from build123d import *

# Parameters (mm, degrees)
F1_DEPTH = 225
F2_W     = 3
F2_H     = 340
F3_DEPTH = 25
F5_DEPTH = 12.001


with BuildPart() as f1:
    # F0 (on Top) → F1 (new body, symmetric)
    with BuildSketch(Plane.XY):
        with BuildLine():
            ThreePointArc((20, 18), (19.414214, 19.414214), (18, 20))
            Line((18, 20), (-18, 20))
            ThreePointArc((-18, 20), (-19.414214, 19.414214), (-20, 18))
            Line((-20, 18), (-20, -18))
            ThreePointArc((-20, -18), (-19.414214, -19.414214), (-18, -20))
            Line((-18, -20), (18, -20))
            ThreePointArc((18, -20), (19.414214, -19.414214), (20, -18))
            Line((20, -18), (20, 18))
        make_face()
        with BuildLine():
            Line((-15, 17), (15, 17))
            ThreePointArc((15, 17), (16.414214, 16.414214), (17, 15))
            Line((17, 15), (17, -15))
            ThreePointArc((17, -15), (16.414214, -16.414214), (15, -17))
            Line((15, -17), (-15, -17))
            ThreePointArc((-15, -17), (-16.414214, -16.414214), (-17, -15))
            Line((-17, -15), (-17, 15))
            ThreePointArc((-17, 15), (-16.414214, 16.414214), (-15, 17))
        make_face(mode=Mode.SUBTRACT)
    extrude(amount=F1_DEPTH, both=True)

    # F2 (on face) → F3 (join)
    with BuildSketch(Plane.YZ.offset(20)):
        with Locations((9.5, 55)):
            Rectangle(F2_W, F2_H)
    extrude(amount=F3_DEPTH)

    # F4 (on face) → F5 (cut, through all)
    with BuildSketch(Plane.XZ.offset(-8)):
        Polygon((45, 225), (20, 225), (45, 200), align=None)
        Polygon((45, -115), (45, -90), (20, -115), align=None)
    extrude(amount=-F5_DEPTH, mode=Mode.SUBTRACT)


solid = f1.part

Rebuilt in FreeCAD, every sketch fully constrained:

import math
import FreeCAD as App
import Part
import Sketcher

V = App.Vector


def add_polygon(sketch, points):
    """Adds a closed chain of lines whose ends are joined by coincident constraints."""
    first, n = sketch.GeometryCount, len(points)
    for a, b in zip(points, points[1:] + points[:1]):
        sketch.addGeometry(Part.LineSegment(App.Vector(*a, 0), App.Vector(*b, 0)), False)
    for i in range(n):
        sketch.addConstraint(Sketcher.Constraint("Coincident", first + i, 2, first + (i + 1) % n, 1))

doc = App.newDocument("Part")
body = doc.addObject("PartDesign::Body", "Body")

sketch1 = body.newObject("Sketcher::SketchObject", "Sketch")
sketch1.AttachmentSupport = (doc.getObject("XY_Plane"), [""])
sketch1.MapMode = "FlatFace"
sketch1.addGeometry([
    Part.ArcOfCircle(Part.Circle(V(18.000001, 18.000001, 0), V(0, 0, 1), 1.999999), math.radians(-0.000043), math.radians(90.000043)),
    Part.LineSegment(V(18, 20, 0), V(-18, 20, 0)),
    Part.ArcOfCircle(Part.Circle(V(-18.000001, 18.000001, 0), V(0, 0, 1), 1.999999), math.radians(89.999957), math.radians(180.000043)),
    Part.LineSegment(V(-20, 18, 0), V(-20, -18, 0)),
    Part.ArcOfCircle(Part.Circle(V(-18.000001, -18.000001, 0), V(0, 0, 1), 1.999999), math.radians(179.999957), math.radians(270.000043)),
    Part.LineSegment(V(-18, -20, 0), V(18, -20, 0)),
    Part.ArcOfCircle(Part.Circle(V(18.000001, -18.000001, 0), V(0, 0, 1), 1.999999), math.radians(-90.000043), math.radians(0.000043)),
    Part.LineSegment(V(20, -18, 0), V(20, 18, 0)),
    Part.ArcOfCircle(Part.Circle(V(-15.000001, 15.000001, 0), V(0, 0, 1), 1.999999), math.radians(89.999957), math.radians(180.000043)),
    Part.LineSegment(V(-15, 17, 0), V(15, 17, 0)),
    Part.ArcOfCircle(Part.Circle(V(15.000001, 15.000001, 0), V(0, 0, 1), 1.999999), math.radians(-0.000043), math.radians(90.000043)),
    Part.LineSegment(V(17, 15, 0), V(17, -15, 0)),
    Part.ArcOfCircle(Part.Circle(V(15.000001, -15.000001, 0), V(0, 0, 1), 1.999999), math.radians(-90.000043), math.radians(0.000043)),
    Part.LineSegment(V(15, -17, 0), V(-15, -17, 0)),
    Part.ArcOfCircle(Part.Circle(V(-15.000001, -15.000001, 0), V(0, 0, 1), 1.999999), math.radians(179.999957), math.radians(270.000043)),
    Part.LineSegment(V(-17, -15, 0), V(-17, 15, 0)),
], False)
sketch1.addConstraint([
    Sketcher.Constraint("Tangent", 0, 2, 1, 1),
    Sketcher.Constraint("Tangent", 1, 2, 2, 1),
    Sketcher.Constraint("Tangent", 2, 2, 3, 1),
    Sketcher.Constraint("Tangent", 3, 2, 4, 1),
    Sketcher.Constraint("Tangent", 4, 2, 5, 1),
    Sketcher.Constraint("Tangent", 5, 2, 6, 1),
    Sketcher.Constraint("Tangent", 6, 2, 7, 1),
    Sketcher.Constraint("Tangent", 7, 2, 0, 1),
    Sketcher.Constraint("Tangent", 8, 1, 9, 1),
    Sketcher.Constraint("Tangent", 9, 2, 10, 2),
    Sketcher.Constraint("Tangent", 10, 1, 11, 1),
    Sketcher.Constraint("Tangent", 11, 2, 12, 2),
    Sketcher.Constraint("Tangent", 12, 1, 13, 1),
    Sketcher.Constraint("Tangent", 13, 2, 14, 2),
    Sketcher.Constraint("Tangent", 14, 1, 15, 1),
    Sketcher.Constraint("Tangent", 15, 2, 8, 2),
    Sketcher.Constraint("Horizontal", 1),
    Sketcher.Constraint("Vertical", 3),
    Sketcher.Constraint("Horizontal", 5),
    Sketcher.Constraint("Vertical", 7),
    Sketcher.Constraint("Horizontal", 9),
    Sketcher.Constraint("Vertical", 11),
    Sketcher.Constraint("Horizontal", 13),
    Sketcher.Constraint("Vertical", 15),
    Sketcher.Constraint("Equal", 0, 2),
    Sketcher.Constraint("Equal", 2, 4),
    Sketcher.Constraint("Equal", 4, 6),
    Sketcher.Constraint("Equal", 6, 8),
    Sketcher.Constraint("Equal", 8, 10),
    Sketcher.Constraint("Equal", 10, 12),
    Sketcher.Constraint("Equal", 12, 14),
    Sketcher.Constraint("Symmetric", 0, 3, 4, 3, -1, 1),
    Sketcher.Constraint("Symmetric", 8, 3, 12, 3, -1, 1),
    Sketcher.Constraint("Equal", 5, 3),
    Sketcher.Constraint("Equal", 13, 11),
    Sketcher.Constraint("Radius", 0, 1.999999),
    Sketcher.Constraint("DistanceX", 1, 2, 1, 1, 36.0),
    Sketcher.Constraint("DistanceX", 9, 1, 9, 2, 30.0),
])
pad1 = body.newObject("PartDesign::Pad", "Pad")
pad1.Profile = sketch1
pad1.Length = 450
pad1.Midplane = True

sketch2 = body.newObject("Sketcher::SketchObject", "Sketch001")
sketch2.AttachmentSupport = (doc.getObject("YZ_Plane"), [""])
sketch2.MapMode = "FlatFace"
sketch2.AttachmentOffset = App.Placement(V(0, 0, 20), App.Rotation())
add_polygon(sketch2, [(8, 225), (8, -115), (11, -115), (11, 225)])
sketch2.addConstraint([
    Sketcher.Constraint("Vertical", 0),
    Sketcher.Constraint("Horizontal", 1),
    Sketcher.Constraint("Vertical", 2),
    Sketcher.Constraint("Horizontal", 3),
    Sketcher.Constraint("DistanceX", 1, 1, 1, 2, 3.0),
    Sketcher.Constraint("DistanceY", 0, 2, 0, 1, 340.0),
    Sketcher.Constraint("DistanceX", -1, 1, 0, 2, 8.0),
    Sketcher.Constraint("DistanceY", 0, 2, -1, 1, 115.0),
])
pad2 = body.newObject("PartDesign::Pad", "Pad001")
pad2.Profile = sketch2
pad2.Length = 25

sketch3 = body.newObject("Sketcher::SketchObject", "Sketch002")
sketch3.AttachmentSupport = (doc.getObject("XZ_Plane"), [""])
sketch3.MapMode = "FlatFace"
sketch3.AttachmentOffset = App.Placement(V(0, 0, -8), App.Rotation())
add_polygon(sketch3, [(45, 225), (20, 225), (45, 200)])
add_polygon(sketch3, [(45, -115), (45, -90), (20, -115)])
sketch3.addConstraint([
    Sketcher.Constraint("Horizontal", 0),
    Sketcher.Constraint("Vertical", 2),
    Sketcher.Constraint("Vertical", 3),
    Sketcher.Constraint("Horizontal", 5),
    Sketcher.Constraint("Perpendicular", 1, 4),
    Sketcher.Constraint("Vertical", 2, 2, 3, 2),
    Sketcher.Constraint("Vertical", 0, 2, 4, 2),
    Sketcher.Constraint("Equal", 5, 2),
    Sketcher.Constraint("DistanceX", 0, 2, 0, 1, 25.0),
    Sketcher.Constraint("DistanceX", -1, 1, 0, 2, 20.0),
    Sketcher.Constraint("DistanceY", -1, 1, 0, 2, 225.0),
    Sketcher.Constraint("DistanceY", 3, 2, -1, 1, 90.0),
])
pocket1 = body.newObject("PartDesign::Pocket", "Pocket")
pocket1.Profile = sketch3
pocket1.Type = "ThroughAll"

doc.recompute()
